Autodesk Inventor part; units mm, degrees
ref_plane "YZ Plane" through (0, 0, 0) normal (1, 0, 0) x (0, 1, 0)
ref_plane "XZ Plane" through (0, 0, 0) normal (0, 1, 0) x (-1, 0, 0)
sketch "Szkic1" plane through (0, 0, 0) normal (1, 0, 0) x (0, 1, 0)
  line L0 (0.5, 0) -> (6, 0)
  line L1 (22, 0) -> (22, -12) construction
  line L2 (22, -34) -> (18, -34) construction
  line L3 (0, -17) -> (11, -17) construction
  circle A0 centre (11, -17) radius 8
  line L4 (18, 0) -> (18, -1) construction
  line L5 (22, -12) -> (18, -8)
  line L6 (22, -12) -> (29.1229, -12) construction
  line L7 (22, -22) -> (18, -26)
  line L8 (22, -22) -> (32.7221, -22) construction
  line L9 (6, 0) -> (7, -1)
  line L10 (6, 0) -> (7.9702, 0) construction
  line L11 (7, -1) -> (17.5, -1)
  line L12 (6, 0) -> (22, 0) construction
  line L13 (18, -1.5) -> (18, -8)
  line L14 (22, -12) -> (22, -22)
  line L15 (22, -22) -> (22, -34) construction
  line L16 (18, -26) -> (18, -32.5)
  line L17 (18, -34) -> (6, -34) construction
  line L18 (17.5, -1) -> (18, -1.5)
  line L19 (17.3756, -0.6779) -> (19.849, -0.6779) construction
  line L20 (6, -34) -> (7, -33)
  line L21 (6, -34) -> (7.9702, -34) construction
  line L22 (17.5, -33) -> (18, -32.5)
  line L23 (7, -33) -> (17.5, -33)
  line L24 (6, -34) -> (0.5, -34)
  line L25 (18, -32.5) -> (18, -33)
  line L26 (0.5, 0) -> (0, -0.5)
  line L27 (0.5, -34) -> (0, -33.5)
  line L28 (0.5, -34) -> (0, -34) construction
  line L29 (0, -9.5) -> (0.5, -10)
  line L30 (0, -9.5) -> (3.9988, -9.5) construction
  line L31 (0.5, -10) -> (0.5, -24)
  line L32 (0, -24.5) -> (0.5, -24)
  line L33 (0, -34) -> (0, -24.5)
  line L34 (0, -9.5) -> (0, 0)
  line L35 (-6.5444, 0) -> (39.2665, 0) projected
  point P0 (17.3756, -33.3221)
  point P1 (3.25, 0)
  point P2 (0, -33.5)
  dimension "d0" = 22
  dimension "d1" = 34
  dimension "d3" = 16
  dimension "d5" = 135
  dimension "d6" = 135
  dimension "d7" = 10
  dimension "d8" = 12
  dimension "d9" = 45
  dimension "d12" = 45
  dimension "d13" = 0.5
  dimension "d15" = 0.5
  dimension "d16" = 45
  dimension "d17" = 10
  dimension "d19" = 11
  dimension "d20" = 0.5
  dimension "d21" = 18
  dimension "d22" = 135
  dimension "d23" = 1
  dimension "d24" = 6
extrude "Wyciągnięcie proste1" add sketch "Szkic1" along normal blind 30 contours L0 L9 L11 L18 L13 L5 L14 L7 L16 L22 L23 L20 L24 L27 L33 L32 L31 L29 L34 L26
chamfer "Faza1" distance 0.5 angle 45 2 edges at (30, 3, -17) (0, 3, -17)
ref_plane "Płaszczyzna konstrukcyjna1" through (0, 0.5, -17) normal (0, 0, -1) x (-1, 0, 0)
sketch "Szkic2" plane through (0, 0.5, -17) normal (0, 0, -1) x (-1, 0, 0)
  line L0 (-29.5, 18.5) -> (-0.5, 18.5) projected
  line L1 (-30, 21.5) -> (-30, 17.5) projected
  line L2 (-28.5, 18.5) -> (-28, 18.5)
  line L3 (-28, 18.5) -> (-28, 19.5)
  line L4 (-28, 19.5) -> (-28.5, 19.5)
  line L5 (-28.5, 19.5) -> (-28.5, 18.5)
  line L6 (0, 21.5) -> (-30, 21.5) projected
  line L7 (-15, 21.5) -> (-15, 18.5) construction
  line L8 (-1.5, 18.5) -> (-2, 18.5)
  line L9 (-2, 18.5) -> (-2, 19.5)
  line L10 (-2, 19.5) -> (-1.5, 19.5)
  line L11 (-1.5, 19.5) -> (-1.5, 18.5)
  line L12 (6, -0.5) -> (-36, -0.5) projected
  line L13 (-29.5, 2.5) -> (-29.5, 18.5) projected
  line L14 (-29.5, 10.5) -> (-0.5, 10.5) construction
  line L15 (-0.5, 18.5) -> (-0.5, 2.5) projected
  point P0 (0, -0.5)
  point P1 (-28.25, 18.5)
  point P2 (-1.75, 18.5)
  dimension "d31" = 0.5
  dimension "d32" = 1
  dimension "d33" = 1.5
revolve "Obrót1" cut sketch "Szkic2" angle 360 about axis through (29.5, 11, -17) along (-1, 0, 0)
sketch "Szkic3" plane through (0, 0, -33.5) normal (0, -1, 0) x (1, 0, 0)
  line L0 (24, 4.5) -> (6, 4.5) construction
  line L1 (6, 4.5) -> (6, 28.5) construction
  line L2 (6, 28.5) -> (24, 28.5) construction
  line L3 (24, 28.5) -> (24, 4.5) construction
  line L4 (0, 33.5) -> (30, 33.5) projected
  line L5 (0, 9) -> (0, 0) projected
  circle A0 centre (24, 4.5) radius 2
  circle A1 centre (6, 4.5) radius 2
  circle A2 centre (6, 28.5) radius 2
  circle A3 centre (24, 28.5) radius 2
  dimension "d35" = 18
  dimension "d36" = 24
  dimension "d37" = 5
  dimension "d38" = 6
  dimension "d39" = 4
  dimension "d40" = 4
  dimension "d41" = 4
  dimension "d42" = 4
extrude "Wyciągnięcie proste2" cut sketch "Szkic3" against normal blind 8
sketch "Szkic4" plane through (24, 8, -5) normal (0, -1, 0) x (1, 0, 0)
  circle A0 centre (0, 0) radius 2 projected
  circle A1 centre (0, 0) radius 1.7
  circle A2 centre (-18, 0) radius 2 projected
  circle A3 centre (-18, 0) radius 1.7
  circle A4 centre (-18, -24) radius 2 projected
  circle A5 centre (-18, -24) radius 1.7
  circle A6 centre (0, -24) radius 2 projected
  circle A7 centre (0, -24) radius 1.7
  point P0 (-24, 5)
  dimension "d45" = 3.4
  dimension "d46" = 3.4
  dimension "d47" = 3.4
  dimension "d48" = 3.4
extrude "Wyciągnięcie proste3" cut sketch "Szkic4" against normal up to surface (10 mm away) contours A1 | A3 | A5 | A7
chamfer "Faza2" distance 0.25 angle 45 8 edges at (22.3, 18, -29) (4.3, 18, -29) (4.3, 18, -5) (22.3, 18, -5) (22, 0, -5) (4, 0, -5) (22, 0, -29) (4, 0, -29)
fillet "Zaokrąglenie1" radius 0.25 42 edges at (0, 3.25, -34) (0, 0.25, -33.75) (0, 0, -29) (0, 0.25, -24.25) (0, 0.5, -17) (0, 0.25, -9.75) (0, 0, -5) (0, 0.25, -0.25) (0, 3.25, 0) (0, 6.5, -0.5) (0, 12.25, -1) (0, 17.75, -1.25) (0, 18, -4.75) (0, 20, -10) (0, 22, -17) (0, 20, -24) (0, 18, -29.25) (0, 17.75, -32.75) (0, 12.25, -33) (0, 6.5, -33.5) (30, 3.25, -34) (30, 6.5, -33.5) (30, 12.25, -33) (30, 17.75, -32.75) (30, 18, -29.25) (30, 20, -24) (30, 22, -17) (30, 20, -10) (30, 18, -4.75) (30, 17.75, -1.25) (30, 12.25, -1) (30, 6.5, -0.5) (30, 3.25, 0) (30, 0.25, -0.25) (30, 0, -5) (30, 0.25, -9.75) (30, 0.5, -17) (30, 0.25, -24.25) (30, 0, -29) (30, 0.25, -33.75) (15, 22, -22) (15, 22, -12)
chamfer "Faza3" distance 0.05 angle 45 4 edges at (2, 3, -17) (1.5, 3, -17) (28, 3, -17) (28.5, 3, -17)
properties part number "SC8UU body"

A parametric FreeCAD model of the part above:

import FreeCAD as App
import Part
import Sketcher

V = App.Vector


def edges_at(feature, points):
    """Names of the edges that pass closest to the given points."""
    edges = feature.Shape.Edges
    near = lambda p: min(range(len(edges)), key=lambda i: edges[i].distToShape(Part.Vertex(*p))[0])
    return sorted({f"Edge{near(p) + 1}" for p in points})

doc = App.newDocument("Part")
body = doc.addObject("PartDesign::Body", "Body")

# Sketch on YZ plane
sketch1 = body.newObject("Sketcher::SketchObject", "Sketch")
sketch1.AttachmentSupport = (doc.getObject("YZ_Plane"), [""])
sketch1.MapMode = "FlatFace"
sketch1.addGeometry([
    Part.LineSegment(V(6, 0, 0), V(0.5, 0, 0)),  # 0
    Part.LineSegment(V(0.5, 0, 0), V(0, -0.5, 0)),  # 1
    Part.LineSegment(V(0, -0.5, 0), V(0, -9.5, 0)),  # 2
    Part.LineSegment(V(0, -9.5, 0), V(0.5, -10, 0)),  # 3
    Part.LineSegment(V(0.5, -10, 0), V(0.5, -24, 0)),  # 4
    Part.LineSegment(V(0.5, -24, 0), V(0, -24.5, 0)),  # 5
    Part.LineSegment(V(0, -24.5, 0), V(0, -33.5, 0)),  # 6
    Part.LineSegment(V(0, -33.5, 0), V(0.5, -34, 0)),  # 7
    Part.LineSegment(V(0.5, -34, 0), V(6, -34, 0)),  # 8
    Part.LineSegment(V(6, -34, 0), V(7, -33, 0)),  # 9
    Part.LineSegment(V(7, -33, 0), V(17.5, -33, 0)),  # 10
    Part.LineSegment(V(17.5, -33, 0), V(18, -32.5, 0)),  # 11
    Part.LineSegment(V(18, -32.5, 0), V(18, -26, 0)),  # 12
    Part.LineSegment(V(18, -26, 0), V(22, -22, 0)),  # 13
    Part.LineSegment(V(22, -22, 0), V(22, -12, 0)),  # 14
    Part.LineSegment(V(22, -12, 0), V(18, -8, 0)),  # 15
    Part.LineSegment(V(18, -8, 0), V(18, -1.5, 0)),  # 16
    Part.LineSegment(V(18, -1.5, 0), V(17.5, -1, 0)),  # 17
    Part.LineSegment(V(17.5, -1, 0), V(7, -1, 0)),  # 18
    Part.LineSegment(V(7, -1, 0), V(6, 0, 0)),  # 19
    Part.Circle(V(11, -17, 0), V(0, 0, 1), 8),  # 20
], False)
sketch1.addConstraint([
    Sketcher.Constraint("Coincident", 0, 2, 1, 1),
    Sketcher.Constraint("Coincident", 1, 2, 2, 1),
    Sketcher.Constraint("Coincident", 2, 2, 3, 1),
    Sketcher.Constraint("Coincident", 3, 2, 4, 1),
    Sketcher.Constraint("Coincident", 4, 2, 5, 1),
    Sketcher.Constraint("Coincident", 5, 2, 6, 1),
    Sketcher.Constraint("Coincident", 6, 2, 7, 1),
    Sketcher.Constraint("Coincident", 7, 2, 8, 1),
    Sketcher.Constraint("Coincident", 8, 2, 9, 1),
    Sketcher.Constraint("Coincident", 9, 2, 10, 1),
    Sketcher.Constraint("Coincident", 10, 2, 11, 1),
    Sketcher.Constraint("Coincident", 11, 2, 12, 1),
    Sketcher.Constraint("Coincident", 12, 2, 13, 1),
    Sketcher.Constraint("Coincident", 13, 2, 14, 1),
    Sketcher.Constraint("Coincident", 14, 2, 15, 1),
    Sketcher.Constraint("Coincident", 15, 2, 16, 1),
    Sketcher.Constraint("Coincident", 16, 2, 17, 1),
    Sketcher.Constraint("Coincident", 17, 2, 18, 1),
    Sketcher.Constraint("Coincident", 18, 2, 19, 1),
    Sketcher.Constraint("Coincident", 19, 2, 0, 1),
    Sketcher.Constraint("Horizontal", 0),
    Sketcher.Constraint("Vertical", 2),
    Sketcher.Constraint("Vertical", 4),
    Sketcher.Constraint("Vertical", 6),
    Sketcher.Constraint("Horizontal", 8),
    Sketcher.Constraint("Horizontal", 10),
    Sketcher.Constraint("Vertical", 12),
    Sketcher.Constraint("Vertical", 14),
    Sketcher.Constraint("Vertical", 16),
    Sketcher.Constraint("Horizontal", 18),
    Sketcher.Constraint("PointOnObject", 0, 2, -1),
    Sketcher.Constraint("PointOnObject", 1, 2, -2),
    Sketcher.Constraint("PointOnObject", 5, 2, -2),
    Sketcher.Constraint("Perpendicular", 1, 3),
    Sketcher.Constraint("Perpendicular", 3, 5),
    Sketcher.Constraint("Perpendicular", 5, 7),
    Sketcher.Constraint("Perpendicular", 7, 9),
    Sketcher.Constraint("Parallel", 9, 11),
    Sketcher.Constraint("Parallel", 11, 13),
    Sketcher.Constraint("Perpendicular", 13, 15),
    Sketcher.Constraint("Parallel", 15, 17),
    Sketcher.Constraint("Parallel", 17, 19),
    Sketcher.Constraint("Vertical", 0, 2, 3, 2),
    Sketcher.Constraint("Vertical", 4, 2, 7, 2),
    Sketcher.Constraint("Vertical", 12, 2, 15, 2),
    Sketcher.Constraint("Vertical", 10, 2, 17, 2),
    Sketcher.Constraint("Vertical", 9, 2, 18, 2),
    Sketcher.Constraint("Vertical", 8, 2, 19, 2),
    Sketcher.Constraint("Equal", 2, 6),
    Sketcher.Constraint("Equal", 12, 16),
    Sketcher.Constraint("Equal", 1, 3),
    Sketcher.Constraint("Equal", 7, 11),
    Sketcher.Constraint("Diameter", 20, 16.0),
    Sketcher.Constraint("DistanceY", 14, 1, 14, 2, 10.0),
    Sketcher.Constraint("DistanceX", -1, 1, 20, 3, 11.0),
    Sketcher.Constraint("DistanceY", 3, 2, -1, 1, 10.0),
    Sketcher.Constraint("DistanceY", 7, 2, -1, 1, 34.0),
    Sketcher.Constraint("DistanceX", -1, 1, 8, 2, 6.0),
    Sketcher.Constraint("DistanceX", -1, 1, 11, 2, 18.0),
    Sketcher.Constraint("DistanceX", -1, 1, 13, 2, 22.0),
    Sketcher.Constraint("DistanceY", 17, 2, -1, 1, 1.0),
    Sketcher.Constraint("DistanceY", 10, 2, 20, 3, 16.0),
    Sketcher.Constraint("DistanceX", -1, 1, 0, 2, 0.5),
])
pad1 = body.newObject("PartDesign::Pad", "Pad")
pad1.Profile = sketch1
pad1.Length = 30
doc.recompute()

chamfer = body.newObject("PartDesign::Chamfer", "Chamfer")
chamfer.Base = (pad1, edges_at(pad1, [(30, 3, -17), (0, 3, -17)]))
chamfer.Size = 0.5

# Sketch on XY plane
sketch2 = body.newObject("Sketcher::SketchObject", "Sketch001")
sketch2.AttachmentSupport = (doc.getObject("XY_Plane"), [""])
sketch2.MapMode = "FlatFace"
sketch2.AttachmentOffset = App.Placement(V(0, 0, -17), App.Rotation())
sketch2.addGeometry([
    Part.LineSegment(V(28.5, 20, 0), V(28.5, 19, 0)),  # 0
    Part.LineSegment(V(28.5, 19, 0), V(28, 19, 0)),  # 1
    Part.LineSegment(V(28, 19, 0), V(28, 20, 0)),  # 2
    Part.LineSegment(V(28, 20, 0), V(28.5, 20, 0)),  # 3
    Part.LineSegment(V(2, 20, 0), V(2, 19, 0)),  # 4
    Part.LineSegment(V(2, 19, 0), V(1.5, 19, 0)),  # 5
    Part.LineSegment(V(1.5, 19, 0), V(1.5, 20, 0)),  # 6
    Part.LineSegment(V(1.5, 20, 0), V(2, 20, 0)),  # 7
], False)
sketch2.addGeometry(Part.LineSegment(V(28.5, 11, 0), V(1.5, 11, 0)), True)  # axis
sketch2.addConstraint([
    Sketcher.Constraint("Coincident", 0, 2, 1, 1),
    Sketcher.Constraint("Coincident", 1, 2, 2, 1),
    Sketcher.Constraint("Coincident", 2, 2, 3, 1),
    Sketcher.Constraint("Coincident", 3, 2, 0, 1),
    Sketcher.Constraint("Coincident", 4, 2, 5, 1),
    Sketcher.Constraint("Coincident", 5, 2, 6, 1),
    Sketcher.Constraint("Coincident", 6, 2, 7, 1),
    Sketcher.Constraint("Coincident", 7, 2, 4, 1),
    Sketcher.Constraint("Vertical", 0),
    Sketcher.Constraint("Horizontal", 1),
    Sketcher.Constraint("Vertical", 2),
    Sketcher.Constraint("Horizontal", 3),
    Sketcher.Constraint("Vertical", 4),
    Sketcher.Constraint("Horizontal", 5),
    Sketcher.Constraint("Vertical", 6),
    Sketcher.Constraint("Horizontal", 7),
    Sketcher.Constraint("Horizontal", 8),
    Sketcher.Constraint("Horizontal", 1, 2, 4, 2),
    Sketcher.Constraint("Horizontal", 3, 2, 6, 2),
    Sketcher.Constraint("Vertical", 3, 2, 8, 1),
    Sketcher.Constraint("Vertical", 6, 2, 8, 2),
    Sketcher.Constraint("Equal", 3, 5),
    Sketcher.Constraint("DistanceY", 0, 2, 0, 1, 1.0),
    Sketcher.Constraint("DistanceX", 1, 2, 1, 1, 0.5),
    Sketcher.Constraint("DistanceX", -1, 1, 5, 2, 1.5),
    Sketcher.Constraint("DistanceX", 8, 2, 8, 1, 27.0),
    Sketcher.Constraint("DistanceY", -1, 1, 0, 2, 19.0),
    Sketcher.Constraint("DistanceY", -1, 1, 8, 1, 11.0),
])
groove = body.newObject("PartDesign::Groove", "Groove")
groove.Profile = sketch2
groove.ReferenceAxis = (sketch2, ["Axis0"])
groove.Angle = 360

# Sketch on XZ plane
sketch3 = body.newObject("Sketcher::SketchObject", "Sketch002")
sketch3.AttachmentSupport = (doc.getObject("XZ_Plane"), [""])
sketch3.MapMode = "FlatFace"
sketch3.addGeometry([
    Part.Circle(V(24, -29, 0), V(0, 0, 1), 2),
    Part.Circle(V(6, -29, 0), V(0, 0, 1), 2),
    Part.Circle(V(6, -5, 0), V(0, 0, 1), 2),
    Part.Circle(V(24, -5, 0), V(0, 0, 1), 2),
], False)
sketch3.addConstraint([
    Sketcher.Constraint("Equal", 0, 1),
    Sketcher.Constraint("Equal", 1, 2),
    Sketcher.Constraint("Equal", 2, 3),
    Sketcher.Constraint("Horizontal", 0, 3, 1, 3),
    Sketcher.Constraint("Horizontal", 2, 3, 3, 3),
    Sketcher.Constraint("Vertical", 1, 3, 2, 3),
    Sketcher.Constraint("Vertical", 0, 3, 3, 3),
    Sketcher.Constraint("Diameter", 0, 4.0),
    Sketcher.Constraint("DistanceX", -1, 1, 0, 3, 24.0),
    Sketcher.Constraint("DistanceX", -1, 1, 1, 3, 6.0),
    Sketcher.Constraint("DistanceY", 2, 3, -1, 1, 5.0),
    Sketcher.Constraint("DistanceY", 1, 3, 2, 3, 24.0),
])
pocket1 = body.newObject("PartDesign::Pocket", "Pocket")
pocket1.Profile = sketch3
pocket1.Length = 8

# Sketch on XZ plane
sketch4 = body.newObject("Sketcher::SketchObject", "Sketch003")
sketch4.AttachmentSupport = (doc.getObject("XZ_Plane"), [""])
sketch4.MapMode = "FlatFace"
sketch4.AttachmentOffset = App.Placement(V(0, 0, -8), App.Rotation())
sketch4.addGeometry([
    Part.Circle(V(24, -5, 0), V(0, 0, 1), 1.7),
    Part.Circle(V(6, -5, 0), V(0, 0, 1), 1.7),
    Part.Circle(V(6, -29, 0), V(0, 0, 1), 1.7),
    Part.Circle(V(24, -29, 0), V(0, 0, 1), 1.7),
], False)
sketch4.addConstraint([
    Sketcher.Constraint("Equal", 0, 1),
    Sketcher.Constraint("Equal", 1, 2),
    Sketcher.Constraint("Equal", 2, 3),
    Sketcher.Constraint("Horizontal", 0, 3, 1, 3),
    Sketcher.Constraint("Horizontal", 2, 3, 3, 3),
    Sketcher.Constraint("Vertical", 1, 3, 2, 3),
    Sketcher.Constraint("Vertical", 0, 3, 3, 3),
    Sketcher.Constraint("Diameter", 0, 3.4),
    Sketcher.Constraint("DistanceX", -1, 1, 0, 3, 24.0),
    Sketcher.Constraint("DistanceY", 0, 3, -1, 1, 5.0),
    Sketcher.Constraint("DistanceX", -1, 1, 1, 3, 6.0),
    Sketcher.Constraint("DistanceY", 2, 3, -1, 1, 29.0),
])
pocket2 = body.newObject("PartDesign::Pocket", "Pocket001")
pocket2.Profile = sketch4
pocket2.Length = 10
doc.recompute()

chamfer2 = body.newObject("PartDesign::Chamfer", "Chamfer001")
chamfer2.Base = (pocket2, edges_at(pocket2, [
    (22.3, 18, -29),
    (4.3, 18, -29),
    (4.3, 18, -5),
    (22.3, 18, -5),
    (22, 0, -5),
    (4, 0, -5),
    (22, 0, -29),
    (4, 0, -29),
]))
chamfer2.Size = 0.25
doc.recompute()

fillet = body.newObject("PartDesign::Fillet", "Fillet")
fillet.Base = (chamfer2, edges_at(chamfer2, [
    (0, 3.25, -34),
    (0, 0.25, -33.75),
    (0, 0, -29),
    (0, 0.25, -24.25),
    (0, 0.5, -17),
    (0, 0.25, -9.75),
    (0, 0, -5),
    (0, 0.25, -0.25),
    (0, 3.25, 0),
    (0, 6.5, -0.5),
    (0, 12.25, -1),
    (0, 17.75, -1.25),
    (0, 18, -4.75),
    (0, 20, -10),
    (0, 22, -17),
    (0, 20, -24),
    (0, 18, -29.25),
    (0, 17.75, -32.75),
    (0, 12.25, -33),
    (0, 6.5, -33.5),
    (30, 3.25, -34),
    (30, 6.5, -33.5),
    (30, 12.25, -33),
    (30, 17.75, -32.75),
    (30, 18, -29.25),
    (30, 20, -24),
    (30, 22, -17),
    (30, 20, -10),
    (30, 18, -4.75),
    (30, 17.75, -1.25),
    (30, 12.25, -1),
    (30, 6.5, -0.5),
    (30, 3.25, 0),
    (30, 0.25, -0.25),
    (30, 0, -5),
    (30, 0.25, -9.75),
    (30, 0.5, -17),
    (30, 0.25, -24.25),
    (30, 0, -29),
    (30, 0.25, -33.75),
    (15, 22, -22),
    (15, 22, -12),
]))
fillet.Radius = 0.25
doc.recompute()

chamfer3 = body.newObject("PartDesign::Chamfer", "Chamfer002")
chamfer3.Base = (fillet, edges_at(fillet, [
    (2, 3, -17),
    (1.5, 3, -17),
    (28, 3, -17),
    (28.5, 3, -17),
]))
chamfer3.Size = 0.05

doc.recompute()
